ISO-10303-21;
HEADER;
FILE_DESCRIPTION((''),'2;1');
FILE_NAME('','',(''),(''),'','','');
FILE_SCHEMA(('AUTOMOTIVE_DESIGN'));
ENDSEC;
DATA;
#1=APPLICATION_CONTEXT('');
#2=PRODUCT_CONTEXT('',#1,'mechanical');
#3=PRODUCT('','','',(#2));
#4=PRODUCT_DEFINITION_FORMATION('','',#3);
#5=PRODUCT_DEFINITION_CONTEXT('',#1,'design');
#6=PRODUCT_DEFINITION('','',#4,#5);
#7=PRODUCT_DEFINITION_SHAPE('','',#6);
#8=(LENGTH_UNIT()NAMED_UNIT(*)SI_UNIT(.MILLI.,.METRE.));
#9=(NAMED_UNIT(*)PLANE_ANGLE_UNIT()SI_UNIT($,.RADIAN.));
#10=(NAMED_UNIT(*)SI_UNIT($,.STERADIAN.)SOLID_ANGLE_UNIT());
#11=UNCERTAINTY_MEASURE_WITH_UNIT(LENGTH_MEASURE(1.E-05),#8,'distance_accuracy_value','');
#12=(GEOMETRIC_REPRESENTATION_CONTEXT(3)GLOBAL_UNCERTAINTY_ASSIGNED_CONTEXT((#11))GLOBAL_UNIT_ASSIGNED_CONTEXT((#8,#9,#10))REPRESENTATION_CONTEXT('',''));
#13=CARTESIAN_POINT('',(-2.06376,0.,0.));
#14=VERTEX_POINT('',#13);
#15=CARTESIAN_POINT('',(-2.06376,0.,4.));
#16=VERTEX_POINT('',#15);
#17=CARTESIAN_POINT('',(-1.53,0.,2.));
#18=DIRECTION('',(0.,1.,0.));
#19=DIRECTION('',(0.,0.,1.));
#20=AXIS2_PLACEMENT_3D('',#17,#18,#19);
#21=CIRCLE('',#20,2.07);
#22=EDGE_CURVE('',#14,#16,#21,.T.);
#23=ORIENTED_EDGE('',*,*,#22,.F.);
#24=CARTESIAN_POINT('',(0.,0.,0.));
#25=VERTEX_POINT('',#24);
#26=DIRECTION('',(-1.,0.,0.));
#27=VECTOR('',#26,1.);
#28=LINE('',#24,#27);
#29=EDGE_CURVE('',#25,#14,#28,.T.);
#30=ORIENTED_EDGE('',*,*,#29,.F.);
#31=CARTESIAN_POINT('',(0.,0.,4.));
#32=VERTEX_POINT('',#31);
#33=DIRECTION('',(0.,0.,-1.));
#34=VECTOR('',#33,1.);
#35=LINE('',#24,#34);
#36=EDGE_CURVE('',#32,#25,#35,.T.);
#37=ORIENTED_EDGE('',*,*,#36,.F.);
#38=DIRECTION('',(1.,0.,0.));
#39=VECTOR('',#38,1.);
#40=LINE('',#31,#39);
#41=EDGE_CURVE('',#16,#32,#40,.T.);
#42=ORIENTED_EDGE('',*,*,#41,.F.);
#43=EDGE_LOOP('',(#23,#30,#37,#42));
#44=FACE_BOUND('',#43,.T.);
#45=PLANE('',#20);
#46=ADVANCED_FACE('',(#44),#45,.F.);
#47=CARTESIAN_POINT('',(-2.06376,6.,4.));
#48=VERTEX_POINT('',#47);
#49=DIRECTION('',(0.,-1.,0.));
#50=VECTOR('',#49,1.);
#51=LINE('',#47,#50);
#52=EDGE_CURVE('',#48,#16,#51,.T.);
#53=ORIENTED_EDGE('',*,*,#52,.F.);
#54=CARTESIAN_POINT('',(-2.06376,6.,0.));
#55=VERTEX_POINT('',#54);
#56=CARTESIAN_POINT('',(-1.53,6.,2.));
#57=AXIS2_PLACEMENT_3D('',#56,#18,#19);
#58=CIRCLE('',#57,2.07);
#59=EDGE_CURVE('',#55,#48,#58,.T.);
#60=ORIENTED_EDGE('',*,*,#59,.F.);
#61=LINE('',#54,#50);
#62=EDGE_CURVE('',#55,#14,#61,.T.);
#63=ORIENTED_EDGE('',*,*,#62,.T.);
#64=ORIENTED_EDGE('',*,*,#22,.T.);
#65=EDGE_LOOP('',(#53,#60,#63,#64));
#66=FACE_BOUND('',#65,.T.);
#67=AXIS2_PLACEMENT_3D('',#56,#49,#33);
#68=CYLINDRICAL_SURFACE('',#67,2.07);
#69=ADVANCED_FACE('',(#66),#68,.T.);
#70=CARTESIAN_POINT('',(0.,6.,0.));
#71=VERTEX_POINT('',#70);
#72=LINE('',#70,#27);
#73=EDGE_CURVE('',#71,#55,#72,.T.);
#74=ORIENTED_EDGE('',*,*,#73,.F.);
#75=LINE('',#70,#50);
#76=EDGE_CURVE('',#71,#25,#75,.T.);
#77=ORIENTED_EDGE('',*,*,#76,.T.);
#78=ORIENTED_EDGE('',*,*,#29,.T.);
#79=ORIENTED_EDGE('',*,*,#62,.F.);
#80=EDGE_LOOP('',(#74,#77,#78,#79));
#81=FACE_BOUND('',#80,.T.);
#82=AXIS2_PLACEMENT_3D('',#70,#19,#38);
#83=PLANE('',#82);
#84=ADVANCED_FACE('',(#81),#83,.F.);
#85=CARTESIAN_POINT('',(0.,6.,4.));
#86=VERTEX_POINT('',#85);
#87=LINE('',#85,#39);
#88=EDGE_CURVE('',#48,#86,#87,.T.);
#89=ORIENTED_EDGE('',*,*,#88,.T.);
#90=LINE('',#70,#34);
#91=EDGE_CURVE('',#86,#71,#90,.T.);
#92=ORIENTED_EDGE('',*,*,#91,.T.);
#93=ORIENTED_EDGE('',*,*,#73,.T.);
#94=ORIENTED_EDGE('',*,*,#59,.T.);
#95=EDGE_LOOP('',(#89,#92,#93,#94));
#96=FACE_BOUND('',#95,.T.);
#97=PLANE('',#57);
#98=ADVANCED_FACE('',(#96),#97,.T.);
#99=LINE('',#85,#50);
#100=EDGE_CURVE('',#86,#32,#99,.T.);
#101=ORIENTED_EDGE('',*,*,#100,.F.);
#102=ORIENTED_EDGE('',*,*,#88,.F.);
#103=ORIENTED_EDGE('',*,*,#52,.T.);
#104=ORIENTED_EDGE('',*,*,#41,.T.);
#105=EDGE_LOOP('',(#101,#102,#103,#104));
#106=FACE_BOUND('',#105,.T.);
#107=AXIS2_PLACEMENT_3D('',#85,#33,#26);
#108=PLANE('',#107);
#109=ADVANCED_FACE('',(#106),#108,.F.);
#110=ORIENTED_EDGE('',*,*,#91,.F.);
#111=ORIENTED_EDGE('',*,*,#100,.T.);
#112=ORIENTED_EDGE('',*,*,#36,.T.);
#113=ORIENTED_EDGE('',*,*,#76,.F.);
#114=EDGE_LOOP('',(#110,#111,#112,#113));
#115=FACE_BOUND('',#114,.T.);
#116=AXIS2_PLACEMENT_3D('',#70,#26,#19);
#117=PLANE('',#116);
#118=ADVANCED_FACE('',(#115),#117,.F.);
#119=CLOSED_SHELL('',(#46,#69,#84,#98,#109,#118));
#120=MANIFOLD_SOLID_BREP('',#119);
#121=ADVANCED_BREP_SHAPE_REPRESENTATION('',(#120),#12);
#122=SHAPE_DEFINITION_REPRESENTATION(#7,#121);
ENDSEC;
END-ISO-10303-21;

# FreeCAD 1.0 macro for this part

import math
import FreeCAD as App
import Part
import Sketcher

doc = App.newDocument("Part")
body = doc.addObject("PartDesign::Body", "Body")

# Sketch on XZ plane
sketch1 = body.newObject("Sketcher::SketchObject", "Sketch")
sketch1.AttachmentSupport = (doc.getObject("XZ_Plane"), [""])
sketch1.MapMode = "FlatFace"
sketch1.addGeometry([
    Part.LineSegment(App.Vector(0, 4, 0), App.Vector(0, 0, 0)),
    Part.LineSegment(App.Vector(0, 0, 0), App.Vector(-2.1, 0, 0)),
    Part.ArcOfCircle(Part.Circle(App.Vector(-1.5, 2, 0), App.Vector(0, 0, 1), 2.1), math.radians(105), math.radians(255)),
    Part.LineSegment(App.Vector(-2.1, 4, 0), App.Vector(0, 4, 0)),
], False)
sketch1.addConstraint([
    Sketcher.Constraint("Coincident", 0, 2, 1, 1),
    Sketcher.Constraint("Coincident", 1, 2, 2, 2),
    Sketcher.Constraint("Coincident", 2, 1, 3, 1),
    Sketcher.Constraint("Coincident", 3, 2, 0, 1),
    Sketcher.Constraint("Vertical", 0),
    Sketcher.Constraint("Horizontal", 1),
    Sketcher.Constraint("Horizontal", 3),
    Sketcher.Constraint("Coincident", 0, 2, -1, 1),
    Sketcher.Constraint("Vertical", 1, 2, 2, 1),
    Sketcher.Constraint("DistanceY", 0, 2, 0, 1, 4.0),
    Sketcher.Constraint("Radius", 2, 2.07),
    Sketcher.Constraint("DistanceX", 2, 3, -1, 1, 1.53),
])
pad1 = body.newObject("PartDesign::Pad", "Pad")
pad1.Profile = sketch1
pad1.Length = 6
pad1.Reversed = True

doc.recompute()
